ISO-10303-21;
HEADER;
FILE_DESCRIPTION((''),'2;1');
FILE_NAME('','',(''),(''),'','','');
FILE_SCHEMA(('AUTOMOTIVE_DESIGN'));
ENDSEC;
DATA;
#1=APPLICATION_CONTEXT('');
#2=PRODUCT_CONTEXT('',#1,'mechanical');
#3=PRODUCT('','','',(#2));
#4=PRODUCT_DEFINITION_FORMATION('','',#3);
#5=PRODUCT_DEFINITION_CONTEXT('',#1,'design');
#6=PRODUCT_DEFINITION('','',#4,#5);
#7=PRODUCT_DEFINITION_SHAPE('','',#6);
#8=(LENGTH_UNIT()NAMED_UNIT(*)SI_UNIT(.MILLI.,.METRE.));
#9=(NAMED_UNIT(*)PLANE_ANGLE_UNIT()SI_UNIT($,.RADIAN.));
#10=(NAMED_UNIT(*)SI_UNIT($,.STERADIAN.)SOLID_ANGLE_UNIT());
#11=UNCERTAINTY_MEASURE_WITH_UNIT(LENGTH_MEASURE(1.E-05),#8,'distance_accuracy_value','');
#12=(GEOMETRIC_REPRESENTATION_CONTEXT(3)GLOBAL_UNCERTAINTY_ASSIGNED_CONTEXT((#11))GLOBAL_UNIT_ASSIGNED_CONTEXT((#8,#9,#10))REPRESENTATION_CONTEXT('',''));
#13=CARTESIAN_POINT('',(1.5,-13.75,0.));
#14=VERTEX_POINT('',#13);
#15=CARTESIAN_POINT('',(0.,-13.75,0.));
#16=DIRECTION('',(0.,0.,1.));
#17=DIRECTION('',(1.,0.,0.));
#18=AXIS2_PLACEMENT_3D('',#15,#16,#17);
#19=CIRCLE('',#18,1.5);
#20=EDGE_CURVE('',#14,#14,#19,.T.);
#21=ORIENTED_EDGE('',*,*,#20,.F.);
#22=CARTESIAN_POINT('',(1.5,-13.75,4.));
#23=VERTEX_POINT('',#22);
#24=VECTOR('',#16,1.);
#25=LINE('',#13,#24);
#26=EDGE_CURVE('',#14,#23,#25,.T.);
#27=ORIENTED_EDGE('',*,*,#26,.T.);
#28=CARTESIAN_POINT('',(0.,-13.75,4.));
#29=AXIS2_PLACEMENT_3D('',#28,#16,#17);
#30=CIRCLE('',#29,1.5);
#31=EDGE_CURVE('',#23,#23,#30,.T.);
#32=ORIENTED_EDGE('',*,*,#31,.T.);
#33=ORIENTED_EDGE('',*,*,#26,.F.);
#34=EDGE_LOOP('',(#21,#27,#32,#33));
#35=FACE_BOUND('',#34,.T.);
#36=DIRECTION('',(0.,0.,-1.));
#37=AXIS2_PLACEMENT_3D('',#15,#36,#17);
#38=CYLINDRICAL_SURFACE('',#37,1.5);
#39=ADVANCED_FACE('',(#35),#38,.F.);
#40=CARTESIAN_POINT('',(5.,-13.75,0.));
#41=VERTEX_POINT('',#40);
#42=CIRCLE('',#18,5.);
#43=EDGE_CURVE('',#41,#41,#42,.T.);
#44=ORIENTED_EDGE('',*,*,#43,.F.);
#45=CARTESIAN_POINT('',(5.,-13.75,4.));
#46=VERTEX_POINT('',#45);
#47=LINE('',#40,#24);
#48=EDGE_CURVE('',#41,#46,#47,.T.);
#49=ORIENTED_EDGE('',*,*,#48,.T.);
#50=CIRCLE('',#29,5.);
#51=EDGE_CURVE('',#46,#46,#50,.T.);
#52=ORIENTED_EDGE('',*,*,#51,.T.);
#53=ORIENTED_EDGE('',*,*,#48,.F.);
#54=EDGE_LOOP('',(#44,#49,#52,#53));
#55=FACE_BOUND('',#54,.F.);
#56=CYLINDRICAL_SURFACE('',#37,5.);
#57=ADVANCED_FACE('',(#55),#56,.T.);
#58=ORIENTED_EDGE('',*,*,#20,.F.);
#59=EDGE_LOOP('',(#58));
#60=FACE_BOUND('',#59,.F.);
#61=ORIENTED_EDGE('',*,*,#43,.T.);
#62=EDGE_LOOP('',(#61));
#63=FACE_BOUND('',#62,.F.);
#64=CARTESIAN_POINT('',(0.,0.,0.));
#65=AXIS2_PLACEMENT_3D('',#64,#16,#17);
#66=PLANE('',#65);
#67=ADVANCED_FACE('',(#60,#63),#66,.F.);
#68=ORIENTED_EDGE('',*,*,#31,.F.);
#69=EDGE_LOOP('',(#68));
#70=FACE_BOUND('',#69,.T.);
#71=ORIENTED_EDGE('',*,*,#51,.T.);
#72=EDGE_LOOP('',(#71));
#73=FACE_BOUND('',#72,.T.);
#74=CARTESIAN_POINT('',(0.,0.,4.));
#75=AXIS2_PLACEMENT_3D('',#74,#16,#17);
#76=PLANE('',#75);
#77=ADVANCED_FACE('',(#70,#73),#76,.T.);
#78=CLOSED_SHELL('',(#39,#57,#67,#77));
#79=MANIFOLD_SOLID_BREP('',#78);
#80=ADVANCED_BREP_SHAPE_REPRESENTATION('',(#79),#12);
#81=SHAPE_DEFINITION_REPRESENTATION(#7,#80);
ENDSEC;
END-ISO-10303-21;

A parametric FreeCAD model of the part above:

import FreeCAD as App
import Part
import Sketcher

doc = App.newDocument("Part")
body = doc.addObject("PartDesign::Body", "Body")

sketch1 = body.newObject("Sketcher::SketchObject", "Sketch")
sketch1.AttachmentSupport = (doc.getObject("XY_Plane"), [""])
sketch1.MapMode = "FlatFace"
sketch1.addGeometry(Part.Circle(App.Vector(0, -13.8, 0), App.Vector(0, 0, 1), 5), False)
sketch1.addGeometry(Part.Circle(App.Vector(0, -13.8, 0), App.Vector(0, 0, 1), 1.5), False)
sketch1.addConstraint(Sketcher.Constraint("Coincident", 1, 3, 0, 3))
sketch1.addConstraint(Sketcher.Constraint("PointOnObject", 0, 3, -2))
sketch1.addConstraint(Sketcher.Constraint("Diameter", 0, 10.0))
sketch1.addConstraint(Sketcher.Constraint("Diameter", 1, 3.0))
sketch1.addConstraint(Sketcher.Constraint("DistanceY", 0, 3, -1, 1, 13.75))
pad1 = body.newObject("PartDesign::Pad", "Pad")
pad1.Profile = sketch1
pad1.Length = 4

doc.recompute()
